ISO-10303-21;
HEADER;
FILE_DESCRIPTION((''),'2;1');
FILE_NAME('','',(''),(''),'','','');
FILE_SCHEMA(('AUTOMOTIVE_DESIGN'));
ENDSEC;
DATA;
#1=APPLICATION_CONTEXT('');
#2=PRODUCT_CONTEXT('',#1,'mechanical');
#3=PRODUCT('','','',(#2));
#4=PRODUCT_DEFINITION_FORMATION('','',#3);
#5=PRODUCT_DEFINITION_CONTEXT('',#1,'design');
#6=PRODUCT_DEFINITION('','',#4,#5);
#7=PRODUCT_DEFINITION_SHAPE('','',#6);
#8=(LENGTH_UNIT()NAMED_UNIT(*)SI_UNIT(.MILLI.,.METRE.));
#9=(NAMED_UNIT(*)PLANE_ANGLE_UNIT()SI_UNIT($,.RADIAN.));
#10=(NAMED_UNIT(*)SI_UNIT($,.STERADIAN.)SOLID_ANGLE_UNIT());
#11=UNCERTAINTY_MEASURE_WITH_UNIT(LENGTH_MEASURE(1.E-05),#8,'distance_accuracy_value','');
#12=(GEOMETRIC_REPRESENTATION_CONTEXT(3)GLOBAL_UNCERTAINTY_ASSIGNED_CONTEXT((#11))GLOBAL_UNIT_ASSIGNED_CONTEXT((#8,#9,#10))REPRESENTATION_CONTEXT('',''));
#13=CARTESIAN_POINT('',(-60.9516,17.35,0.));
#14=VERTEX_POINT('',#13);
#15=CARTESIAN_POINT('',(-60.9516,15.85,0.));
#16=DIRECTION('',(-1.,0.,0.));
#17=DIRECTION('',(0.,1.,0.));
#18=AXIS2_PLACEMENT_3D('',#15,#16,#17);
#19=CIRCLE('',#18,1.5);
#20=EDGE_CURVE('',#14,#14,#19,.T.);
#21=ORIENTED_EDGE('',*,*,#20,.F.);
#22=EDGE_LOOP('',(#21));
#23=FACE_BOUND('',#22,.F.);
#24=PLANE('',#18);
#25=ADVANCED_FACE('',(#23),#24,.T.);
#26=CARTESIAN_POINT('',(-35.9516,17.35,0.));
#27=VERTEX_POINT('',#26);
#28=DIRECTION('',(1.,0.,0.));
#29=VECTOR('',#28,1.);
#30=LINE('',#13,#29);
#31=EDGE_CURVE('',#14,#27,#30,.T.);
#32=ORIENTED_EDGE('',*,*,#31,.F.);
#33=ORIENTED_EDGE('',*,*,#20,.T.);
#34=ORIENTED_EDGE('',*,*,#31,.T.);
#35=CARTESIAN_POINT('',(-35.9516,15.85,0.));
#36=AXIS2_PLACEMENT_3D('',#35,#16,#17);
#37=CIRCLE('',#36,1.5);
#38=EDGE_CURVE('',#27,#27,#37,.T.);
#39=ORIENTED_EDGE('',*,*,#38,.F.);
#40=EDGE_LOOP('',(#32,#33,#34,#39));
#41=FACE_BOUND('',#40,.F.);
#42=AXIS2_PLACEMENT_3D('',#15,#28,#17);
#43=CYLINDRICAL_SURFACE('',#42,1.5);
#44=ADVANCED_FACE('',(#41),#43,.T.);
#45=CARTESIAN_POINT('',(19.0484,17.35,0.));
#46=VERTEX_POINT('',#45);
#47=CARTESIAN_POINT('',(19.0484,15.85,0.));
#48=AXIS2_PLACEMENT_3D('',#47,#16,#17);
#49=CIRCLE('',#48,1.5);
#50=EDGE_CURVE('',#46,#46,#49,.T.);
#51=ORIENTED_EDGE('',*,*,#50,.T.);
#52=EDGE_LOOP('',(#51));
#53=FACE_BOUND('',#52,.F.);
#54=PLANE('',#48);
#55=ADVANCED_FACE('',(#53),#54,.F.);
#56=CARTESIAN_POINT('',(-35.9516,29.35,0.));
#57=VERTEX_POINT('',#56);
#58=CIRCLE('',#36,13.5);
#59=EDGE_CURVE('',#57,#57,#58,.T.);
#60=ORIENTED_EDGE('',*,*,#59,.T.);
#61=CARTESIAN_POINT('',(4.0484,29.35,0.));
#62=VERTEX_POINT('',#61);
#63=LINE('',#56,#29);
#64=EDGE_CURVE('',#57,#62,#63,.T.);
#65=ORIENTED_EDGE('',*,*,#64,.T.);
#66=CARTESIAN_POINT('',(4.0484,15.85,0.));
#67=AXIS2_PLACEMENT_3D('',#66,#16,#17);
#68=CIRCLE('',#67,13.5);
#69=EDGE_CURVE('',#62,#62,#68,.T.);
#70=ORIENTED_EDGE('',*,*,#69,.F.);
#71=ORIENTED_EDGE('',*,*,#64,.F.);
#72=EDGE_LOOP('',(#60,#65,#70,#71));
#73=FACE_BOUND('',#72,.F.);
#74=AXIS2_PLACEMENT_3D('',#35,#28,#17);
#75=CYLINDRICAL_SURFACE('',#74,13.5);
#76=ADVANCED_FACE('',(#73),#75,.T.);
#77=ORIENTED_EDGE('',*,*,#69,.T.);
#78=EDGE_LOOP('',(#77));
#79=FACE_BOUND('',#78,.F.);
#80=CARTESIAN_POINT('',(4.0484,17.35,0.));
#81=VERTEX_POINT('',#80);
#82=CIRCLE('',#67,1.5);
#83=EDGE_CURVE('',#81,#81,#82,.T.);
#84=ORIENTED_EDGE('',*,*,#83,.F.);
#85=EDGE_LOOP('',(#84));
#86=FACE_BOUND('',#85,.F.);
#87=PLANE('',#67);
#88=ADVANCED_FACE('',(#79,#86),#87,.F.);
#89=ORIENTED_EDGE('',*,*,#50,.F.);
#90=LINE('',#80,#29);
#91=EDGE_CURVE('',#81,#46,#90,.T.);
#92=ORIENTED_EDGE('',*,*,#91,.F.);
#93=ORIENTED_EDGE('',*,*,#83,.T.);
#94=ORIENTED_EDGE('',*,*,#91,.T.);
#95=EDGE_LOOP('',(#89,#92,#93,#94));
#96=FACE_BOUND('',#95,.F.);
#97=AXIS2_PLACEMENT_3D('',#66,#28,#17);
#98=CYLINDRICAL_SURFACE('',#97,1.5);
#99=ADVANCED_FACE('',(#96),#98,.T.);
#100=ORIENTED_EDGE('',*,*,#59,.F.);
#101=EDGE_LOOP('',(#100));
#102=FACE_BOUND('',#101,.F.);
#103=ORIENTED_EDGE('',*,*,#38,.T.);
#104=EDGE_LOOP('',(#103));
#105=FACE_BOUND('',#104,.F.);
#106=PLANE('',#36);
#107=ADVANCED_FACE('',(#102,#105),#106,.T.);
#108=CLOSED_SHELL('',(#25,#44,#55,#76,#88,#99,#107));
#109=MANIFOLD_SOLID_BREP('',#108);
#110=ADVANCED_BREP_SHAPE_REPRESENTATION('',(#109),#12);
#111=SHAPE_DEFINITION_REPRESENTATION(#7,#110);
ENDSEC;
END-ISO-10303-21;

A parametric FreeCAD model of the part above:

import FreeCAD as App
import Part
import Sketcher
from FreeCAD import Vector
Q = App.Units.Quantity


def add_polygon(sketch, points):
    """Adds a closed chain of lines whose ends are joined by coincident constraints."""
    first, n = sketch.GeometryCount, len(points)
    for a, b in zip(points, points[1:] + points[:1]):
        sketch.addGeometry(Part.LineSegment(App.Vector(*a, 0), App.Vector(*b, 0)), False)
    for i in range(n):
        sketch.addConstraint(Sketcher.Constraint("Coincident", first + i, 2, first + (i + 1) % n, 1))

doc = App.newDocument("Part")
body = doc.addObject("PartDesign::Body", "Body")

sketch1 = body.newObject("Sketcher::SketchObject", "Sketch")
sketch1.AttachmentSupport = (doc.getObject("XY_Plane"), [""])
sketch1.MapMode = "FlatFace"
add_polygon(sketch1, [(-35.9516, 17.35), (-60.9516, 17.35), (-60.9516, 15.85), (19.0484, 15.85), (19.0484, 17.35), (4.0484, 17.35), (4.0484, 29.35), (-35.9516, 29.35)])
sketch1.addGeometry(Part.LineSegment(Vector(19.0484, 15.85, 0), Vector(-60.9516, 15.85, 0)), True)
sketch1.addConstraint(Sketcher.Constraint("Horizontal", 0))
sketch1.addConstraint(Sketcher.Constraint("Vertical", 1))
sketch1.addConstraint(Sketcher.Constraint("Horizontal", 2))
sketch1.addConstraint(Sketcher.Constraint("Vertical", 3))
sketch1.addConstraint(Sketcher.Constraint("Horizontal", 4))
sketch1.addConstraint(Sketcher.Constraint("Vertical", 5))
sketch1.addConstraint(Sketcher.Constraint("Horizontal", 6))
sketch1.addConstraint(Sketcher.Constraint("Vertical", 7))
sketch1.addConstraint(Sketcher.Constraint("Horizontal", 8))
sketch1.addConstraint(Sketcher.Constraint("Coincident", 8, 1, 2, 2))
sketch1.addConstraint(Sketcher.Constraint("Horizontal", 0, 2, 3, 2))
sketch1.addConstraint(Sketcher.Constraint("Vertical", 0, 2, 8, 2))
sketch1.addConstraint(Sketcher.Constraint("DistanceX", 0, 2, 0, 1, Q("25 mm")))
sketch1.addConstraint(Sketcher.Constraint("DistanceX", 4, 2, 4, 1, Q("15 mm")))
sketch1.addConstraint(Sketcher.Constraint("DistanceX", 6, 2, 6, 1, Q("40 mm")))
sketch1.addConstraint(Sketcher.Constraint("DistanceY", 5, 1, 5, 2, Q("12 mm")))
sketch1.addConstraint(Sketcher.Constraint("DistanceY", 1, 2, 1, 1, Q("1.5 mm")))
sketch1.addConstraint(Sketcher.Constraint("DistanceY", -1, 1, 0, 2, Q("17.35 mm")))
sketch1.addConstraint(Sketcher.Constraint("DistanceX", 0, 2, -1, 1, Q("60.9516 mm")))
revolution = body.newObject("PartDesign::Revolution", "Revolution")
revolution.Profile = sketch1
revolution.ReferenceAxis = (sketch1, ["Axis0"])
revolution.Angle = 360

doc.recompute()
